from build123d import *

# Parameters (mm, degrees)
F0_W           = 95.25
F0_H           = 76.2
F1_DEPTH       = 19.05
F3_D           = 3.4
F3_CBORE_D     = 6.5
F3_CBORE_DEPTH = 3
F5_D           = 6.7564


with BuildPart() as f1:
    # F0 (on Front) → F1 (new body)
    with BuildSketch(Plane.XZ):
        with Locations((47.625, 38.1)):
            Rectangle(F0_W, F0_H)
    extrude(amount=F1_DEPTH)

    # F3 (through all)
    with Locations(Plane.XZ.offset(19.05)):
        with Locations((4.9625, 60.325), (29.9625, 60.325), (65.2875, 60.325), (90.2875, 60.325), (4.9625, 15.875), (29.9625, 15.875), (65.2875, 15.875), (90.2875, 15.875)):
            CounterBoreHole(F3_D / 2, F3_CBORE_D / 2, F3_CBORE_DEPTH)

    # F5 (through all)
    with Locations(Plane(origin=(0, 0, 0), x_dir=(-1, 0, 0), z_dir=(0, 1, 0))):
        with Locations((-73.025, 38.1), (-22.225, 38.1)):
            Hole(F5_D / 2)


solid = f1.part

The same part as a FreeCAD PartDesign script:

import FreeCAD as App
import Part
import Sketcher

V = App.Vector
Q = App.Units.Quantity

doc = App.newDocument("Part")
params = doc.addObject("Spreadsheet::Sheet", "Params")
for row, (alias, value) in enumerate([
    ("sketch1_height", "3 in"),
    ("sketch1_width", "3.75 in"),
    ("pad1_length", "0.75 in"),
    ("hole_diameter", "3.4 mm"),
    ("hole_cbore_diameter", "6.5 mm"),
    ("hole_cbore_depth", "3 mm"),
    ("sketch3_diameter", "0.266 in"),
    ("hole2_diameter", "0.266 in"),
], start=1):
    params.set(f"A{row}", alias)
    params.set(f"B{row}", "=" + value)
    params.setAlias(f"B{row}", alias)

body = doc.addObject("PartDesign::Body", "Body")

sketch1 = doc.addObject("Sketcher::SketchObject", "Sketch")
body.addObject(sketch1)
sketch1.AttachmentSupport = (doc.XZ_Plane, [""])
sketch1.MapMode = "FlatFace"
sketch1.addGeometry([
    Part.LineSegment(V(0, 76, 0), V(0, 0, 0)),
    Part.LineSegment(V(0, 0, 0), V(95, 0, 0)),
    Part.LineSegment(V(95, 0, 0), V(95, 76, 0)),
    Part.LineSegment(V(95, 76, 0), V(0, 76, 0)),
], False)
sketch1.addConstraint([
    Sketcher.Constraint("Coincident", 0, 2, 1, 1),
    Sketcher.Constraint("Coincident", 1, 2, 2, 1),
    Sketcher.Constraint("Coincident", 2, 2, 3, 1),
    Sketcher.Constraint("Coincident", 3, 2, 0, 1),
    Sketcher.Constraint("Vertical", 0),
    Sketcher.Constraint("Horizontal", 1),
    Sketcher.Constraint("Vertical", 2),
    Sketcher.Constraint("Horizontal", 3),
    Sketcher.Constraint("Coincident", 0, 2, -1, 1),
    Sketcher.Constraint("DistanceY", 0, 2, 0, 1, Q("3 in")),
    Sketcher.Constraint("DistanceX", 1, 1, 1, 2, Q("3.75 in")),
])
sketch1.setExpression("Constraints[9]", "Params.sketch1_height")
sketch1.setExpression("Constraints[10]", "Params.sketch1_width")
pad1 = doc.addObject("PartDesign::Pad", "Pad")
body.addObject(pad1)
pad1.Profile = sketch1
pad1.setExpression("Length", "Params.pad1_length")

sketch2 = doc.addObject("Sketcher::SketchObject", "Sketch001")
body.addObject(sketch2)
sketch2.AttachmentSupport = (doc.XZ_Plane, [""])
sketch2.MapMode = "FlatFace"
sketch2.AttachmentOffset = App.Placement(V(0, 0, 0.75 * 25.4), App.Rotation())
sketch2.addGeometry([
    Part.Circle(V(5, 60.3, 0), V(0, 0, 1), 1.7),
    Part.Circle(V(30, 60.3, 0), V(0, 0, 1), 1.7),
    Part.Circle(V(65.3, 60.3, 0), V(0, 0, 1), 1.7),
    Part.Circle(V(90.3, 60.3, 0), V(0, 0, 1), 1.7),
    Part.Circle(V(5, 15.9, 0), V(0, 0, 1), 1.7),
    Part.Circle(V(30, 15.9, 0), V(0, 0, 1), 1.7),
    Part.Circle(V(65.3, 15.9, 0), V(0, 0, 1), 1.7),
    Part.Circle(V(90.3, 15.9, 0), V(0, 0, 1), 1.7),
], False)
sketch2.addConstraint([
    Sketcher.Constraint("Equal", 0, 1),
    Sketcher.Constraint("Equal", 1, 2),
    Sketcher.Constraint("Equal", 2, 3),
    Sketcher.Constraint("Equal", 3, 4),
    Sketcher.Constraint("Equal", 4, 5),
    Sketcher.Constraint("Equal", 5, 6),
    Sketcher.Constraint("Equal", 6, 7),
    Sketcher.Constraint("Horizontal", 0, 3, 1, 3),
    Sketcher.Constraint("Horizontal", 1, 3, 2, 3),
    Sketcher.Constraint("Horizontal", 2, 3, 3, 3),
    Sketcher.Constraint("Horizontal", 4, 3, 5, 3),
    Sketcher.Constraint("Horizontal", 5, 3, 6, 3),
    Sketcher.Constraint("Horizontal", 6, 3, 7, 3),
    Sketcher.Constraint("Vertical", 0, 3, 4, 3),
    Sketcher.Constraint("Vertical", 1, 3, 5, 3),
    Sketcher.Constraint("Vertical", 2, 3, 6, 3),
    Sketcher.Constraint("Vertical", 3, 3, 7, 3),
    Sketcher.Constraint("Diameter", 0, 3.4),
    Sketcher.Constraint("DistanceY", 4, 3, 0, 3, Q("1.75 in")),
    Sketcher.Constraint("DistanceY", -1, 1, 0, 3, Q("2.375 in")),
    Sketcher.Constraint("DistanceX", 0, 3, 2, 3, Q("2.375 in")),
    Sketcher.Constraint("DistanceX", 1, 3, 3, 3, Q("2.375 in")),
    Sketcher.Constraint("DistanceX", -1, 1, 0, 3, 4.9625),
    Sketcher.Constraint("DistanceX", -1, 1, 1, 3, 29.9625),
])
doc.recompute()
hole = doc.addObject("PartDesign::Hole", "Hole")
body.addObject(hole)
hole.Profile = sketch2
hole.ThreadType = "None"
hole.setExpression("Diameter", "Params.hole_diameter")
hole.DepthType = "ThroughAll"
hole.HoleCutType = "Counterbore"
hole.setExpression("HoleCutDiameter", "Params.hole_cbore_diameter")
hole.setExpression("HoleCutDepth", "Params.hole_cbore_depth")

sketch3 = doc.addObject("Sketcher::SketchObject", "Sketch002")
body.addObject(sketch3)
sketch3.AttachmentSupport = (doc.XZ_Plane, [""])
sketch3.MapMode = "FlatFace"
sketch3.addGeometry([
    Part.Circle(V(73, 38.1, 0), V(0, 0, 1), 3.4),
    Part.Circle(V(22.2, 38.1, 0), V(0, 0, 1), 3.4),
], False)
sketch3.addConstraint([
    Sketcher.Constraint("Equal", 0, 1),
    Sketcher.Constraint("Horizontal", 0, 3, 1, 3),
    Sketcher.Constraint("Diameter", 0, Q("0.266 in")),
    Sketcher.Constraint("DistanceX", 1, 3, 0, 3, Q("2 in")),
    Sketcher.Constraint("DistanceY", -1, 1, 0, 3, Q("1.5 in")),
    Sketcher.Constraint("DistanceX", -1, 1, 0, 3, Q("2.875 in")),
])
sketch3.setExpression("Constraints[2]", "Params.sketch3_diameter")
doc.recompute()
hole2 = doc.addObject("PartDesign::Hole", "Hole001")
body.addObject(hole2)
hole2.Profile = sketch3
hole2.ThreadType = "None"
hole2.setExpression("Diameter", "Params.hole2_diameter")
hole2.DepthType = "ThroughAll"
hole2.Reversed = True

doc.recompute()
